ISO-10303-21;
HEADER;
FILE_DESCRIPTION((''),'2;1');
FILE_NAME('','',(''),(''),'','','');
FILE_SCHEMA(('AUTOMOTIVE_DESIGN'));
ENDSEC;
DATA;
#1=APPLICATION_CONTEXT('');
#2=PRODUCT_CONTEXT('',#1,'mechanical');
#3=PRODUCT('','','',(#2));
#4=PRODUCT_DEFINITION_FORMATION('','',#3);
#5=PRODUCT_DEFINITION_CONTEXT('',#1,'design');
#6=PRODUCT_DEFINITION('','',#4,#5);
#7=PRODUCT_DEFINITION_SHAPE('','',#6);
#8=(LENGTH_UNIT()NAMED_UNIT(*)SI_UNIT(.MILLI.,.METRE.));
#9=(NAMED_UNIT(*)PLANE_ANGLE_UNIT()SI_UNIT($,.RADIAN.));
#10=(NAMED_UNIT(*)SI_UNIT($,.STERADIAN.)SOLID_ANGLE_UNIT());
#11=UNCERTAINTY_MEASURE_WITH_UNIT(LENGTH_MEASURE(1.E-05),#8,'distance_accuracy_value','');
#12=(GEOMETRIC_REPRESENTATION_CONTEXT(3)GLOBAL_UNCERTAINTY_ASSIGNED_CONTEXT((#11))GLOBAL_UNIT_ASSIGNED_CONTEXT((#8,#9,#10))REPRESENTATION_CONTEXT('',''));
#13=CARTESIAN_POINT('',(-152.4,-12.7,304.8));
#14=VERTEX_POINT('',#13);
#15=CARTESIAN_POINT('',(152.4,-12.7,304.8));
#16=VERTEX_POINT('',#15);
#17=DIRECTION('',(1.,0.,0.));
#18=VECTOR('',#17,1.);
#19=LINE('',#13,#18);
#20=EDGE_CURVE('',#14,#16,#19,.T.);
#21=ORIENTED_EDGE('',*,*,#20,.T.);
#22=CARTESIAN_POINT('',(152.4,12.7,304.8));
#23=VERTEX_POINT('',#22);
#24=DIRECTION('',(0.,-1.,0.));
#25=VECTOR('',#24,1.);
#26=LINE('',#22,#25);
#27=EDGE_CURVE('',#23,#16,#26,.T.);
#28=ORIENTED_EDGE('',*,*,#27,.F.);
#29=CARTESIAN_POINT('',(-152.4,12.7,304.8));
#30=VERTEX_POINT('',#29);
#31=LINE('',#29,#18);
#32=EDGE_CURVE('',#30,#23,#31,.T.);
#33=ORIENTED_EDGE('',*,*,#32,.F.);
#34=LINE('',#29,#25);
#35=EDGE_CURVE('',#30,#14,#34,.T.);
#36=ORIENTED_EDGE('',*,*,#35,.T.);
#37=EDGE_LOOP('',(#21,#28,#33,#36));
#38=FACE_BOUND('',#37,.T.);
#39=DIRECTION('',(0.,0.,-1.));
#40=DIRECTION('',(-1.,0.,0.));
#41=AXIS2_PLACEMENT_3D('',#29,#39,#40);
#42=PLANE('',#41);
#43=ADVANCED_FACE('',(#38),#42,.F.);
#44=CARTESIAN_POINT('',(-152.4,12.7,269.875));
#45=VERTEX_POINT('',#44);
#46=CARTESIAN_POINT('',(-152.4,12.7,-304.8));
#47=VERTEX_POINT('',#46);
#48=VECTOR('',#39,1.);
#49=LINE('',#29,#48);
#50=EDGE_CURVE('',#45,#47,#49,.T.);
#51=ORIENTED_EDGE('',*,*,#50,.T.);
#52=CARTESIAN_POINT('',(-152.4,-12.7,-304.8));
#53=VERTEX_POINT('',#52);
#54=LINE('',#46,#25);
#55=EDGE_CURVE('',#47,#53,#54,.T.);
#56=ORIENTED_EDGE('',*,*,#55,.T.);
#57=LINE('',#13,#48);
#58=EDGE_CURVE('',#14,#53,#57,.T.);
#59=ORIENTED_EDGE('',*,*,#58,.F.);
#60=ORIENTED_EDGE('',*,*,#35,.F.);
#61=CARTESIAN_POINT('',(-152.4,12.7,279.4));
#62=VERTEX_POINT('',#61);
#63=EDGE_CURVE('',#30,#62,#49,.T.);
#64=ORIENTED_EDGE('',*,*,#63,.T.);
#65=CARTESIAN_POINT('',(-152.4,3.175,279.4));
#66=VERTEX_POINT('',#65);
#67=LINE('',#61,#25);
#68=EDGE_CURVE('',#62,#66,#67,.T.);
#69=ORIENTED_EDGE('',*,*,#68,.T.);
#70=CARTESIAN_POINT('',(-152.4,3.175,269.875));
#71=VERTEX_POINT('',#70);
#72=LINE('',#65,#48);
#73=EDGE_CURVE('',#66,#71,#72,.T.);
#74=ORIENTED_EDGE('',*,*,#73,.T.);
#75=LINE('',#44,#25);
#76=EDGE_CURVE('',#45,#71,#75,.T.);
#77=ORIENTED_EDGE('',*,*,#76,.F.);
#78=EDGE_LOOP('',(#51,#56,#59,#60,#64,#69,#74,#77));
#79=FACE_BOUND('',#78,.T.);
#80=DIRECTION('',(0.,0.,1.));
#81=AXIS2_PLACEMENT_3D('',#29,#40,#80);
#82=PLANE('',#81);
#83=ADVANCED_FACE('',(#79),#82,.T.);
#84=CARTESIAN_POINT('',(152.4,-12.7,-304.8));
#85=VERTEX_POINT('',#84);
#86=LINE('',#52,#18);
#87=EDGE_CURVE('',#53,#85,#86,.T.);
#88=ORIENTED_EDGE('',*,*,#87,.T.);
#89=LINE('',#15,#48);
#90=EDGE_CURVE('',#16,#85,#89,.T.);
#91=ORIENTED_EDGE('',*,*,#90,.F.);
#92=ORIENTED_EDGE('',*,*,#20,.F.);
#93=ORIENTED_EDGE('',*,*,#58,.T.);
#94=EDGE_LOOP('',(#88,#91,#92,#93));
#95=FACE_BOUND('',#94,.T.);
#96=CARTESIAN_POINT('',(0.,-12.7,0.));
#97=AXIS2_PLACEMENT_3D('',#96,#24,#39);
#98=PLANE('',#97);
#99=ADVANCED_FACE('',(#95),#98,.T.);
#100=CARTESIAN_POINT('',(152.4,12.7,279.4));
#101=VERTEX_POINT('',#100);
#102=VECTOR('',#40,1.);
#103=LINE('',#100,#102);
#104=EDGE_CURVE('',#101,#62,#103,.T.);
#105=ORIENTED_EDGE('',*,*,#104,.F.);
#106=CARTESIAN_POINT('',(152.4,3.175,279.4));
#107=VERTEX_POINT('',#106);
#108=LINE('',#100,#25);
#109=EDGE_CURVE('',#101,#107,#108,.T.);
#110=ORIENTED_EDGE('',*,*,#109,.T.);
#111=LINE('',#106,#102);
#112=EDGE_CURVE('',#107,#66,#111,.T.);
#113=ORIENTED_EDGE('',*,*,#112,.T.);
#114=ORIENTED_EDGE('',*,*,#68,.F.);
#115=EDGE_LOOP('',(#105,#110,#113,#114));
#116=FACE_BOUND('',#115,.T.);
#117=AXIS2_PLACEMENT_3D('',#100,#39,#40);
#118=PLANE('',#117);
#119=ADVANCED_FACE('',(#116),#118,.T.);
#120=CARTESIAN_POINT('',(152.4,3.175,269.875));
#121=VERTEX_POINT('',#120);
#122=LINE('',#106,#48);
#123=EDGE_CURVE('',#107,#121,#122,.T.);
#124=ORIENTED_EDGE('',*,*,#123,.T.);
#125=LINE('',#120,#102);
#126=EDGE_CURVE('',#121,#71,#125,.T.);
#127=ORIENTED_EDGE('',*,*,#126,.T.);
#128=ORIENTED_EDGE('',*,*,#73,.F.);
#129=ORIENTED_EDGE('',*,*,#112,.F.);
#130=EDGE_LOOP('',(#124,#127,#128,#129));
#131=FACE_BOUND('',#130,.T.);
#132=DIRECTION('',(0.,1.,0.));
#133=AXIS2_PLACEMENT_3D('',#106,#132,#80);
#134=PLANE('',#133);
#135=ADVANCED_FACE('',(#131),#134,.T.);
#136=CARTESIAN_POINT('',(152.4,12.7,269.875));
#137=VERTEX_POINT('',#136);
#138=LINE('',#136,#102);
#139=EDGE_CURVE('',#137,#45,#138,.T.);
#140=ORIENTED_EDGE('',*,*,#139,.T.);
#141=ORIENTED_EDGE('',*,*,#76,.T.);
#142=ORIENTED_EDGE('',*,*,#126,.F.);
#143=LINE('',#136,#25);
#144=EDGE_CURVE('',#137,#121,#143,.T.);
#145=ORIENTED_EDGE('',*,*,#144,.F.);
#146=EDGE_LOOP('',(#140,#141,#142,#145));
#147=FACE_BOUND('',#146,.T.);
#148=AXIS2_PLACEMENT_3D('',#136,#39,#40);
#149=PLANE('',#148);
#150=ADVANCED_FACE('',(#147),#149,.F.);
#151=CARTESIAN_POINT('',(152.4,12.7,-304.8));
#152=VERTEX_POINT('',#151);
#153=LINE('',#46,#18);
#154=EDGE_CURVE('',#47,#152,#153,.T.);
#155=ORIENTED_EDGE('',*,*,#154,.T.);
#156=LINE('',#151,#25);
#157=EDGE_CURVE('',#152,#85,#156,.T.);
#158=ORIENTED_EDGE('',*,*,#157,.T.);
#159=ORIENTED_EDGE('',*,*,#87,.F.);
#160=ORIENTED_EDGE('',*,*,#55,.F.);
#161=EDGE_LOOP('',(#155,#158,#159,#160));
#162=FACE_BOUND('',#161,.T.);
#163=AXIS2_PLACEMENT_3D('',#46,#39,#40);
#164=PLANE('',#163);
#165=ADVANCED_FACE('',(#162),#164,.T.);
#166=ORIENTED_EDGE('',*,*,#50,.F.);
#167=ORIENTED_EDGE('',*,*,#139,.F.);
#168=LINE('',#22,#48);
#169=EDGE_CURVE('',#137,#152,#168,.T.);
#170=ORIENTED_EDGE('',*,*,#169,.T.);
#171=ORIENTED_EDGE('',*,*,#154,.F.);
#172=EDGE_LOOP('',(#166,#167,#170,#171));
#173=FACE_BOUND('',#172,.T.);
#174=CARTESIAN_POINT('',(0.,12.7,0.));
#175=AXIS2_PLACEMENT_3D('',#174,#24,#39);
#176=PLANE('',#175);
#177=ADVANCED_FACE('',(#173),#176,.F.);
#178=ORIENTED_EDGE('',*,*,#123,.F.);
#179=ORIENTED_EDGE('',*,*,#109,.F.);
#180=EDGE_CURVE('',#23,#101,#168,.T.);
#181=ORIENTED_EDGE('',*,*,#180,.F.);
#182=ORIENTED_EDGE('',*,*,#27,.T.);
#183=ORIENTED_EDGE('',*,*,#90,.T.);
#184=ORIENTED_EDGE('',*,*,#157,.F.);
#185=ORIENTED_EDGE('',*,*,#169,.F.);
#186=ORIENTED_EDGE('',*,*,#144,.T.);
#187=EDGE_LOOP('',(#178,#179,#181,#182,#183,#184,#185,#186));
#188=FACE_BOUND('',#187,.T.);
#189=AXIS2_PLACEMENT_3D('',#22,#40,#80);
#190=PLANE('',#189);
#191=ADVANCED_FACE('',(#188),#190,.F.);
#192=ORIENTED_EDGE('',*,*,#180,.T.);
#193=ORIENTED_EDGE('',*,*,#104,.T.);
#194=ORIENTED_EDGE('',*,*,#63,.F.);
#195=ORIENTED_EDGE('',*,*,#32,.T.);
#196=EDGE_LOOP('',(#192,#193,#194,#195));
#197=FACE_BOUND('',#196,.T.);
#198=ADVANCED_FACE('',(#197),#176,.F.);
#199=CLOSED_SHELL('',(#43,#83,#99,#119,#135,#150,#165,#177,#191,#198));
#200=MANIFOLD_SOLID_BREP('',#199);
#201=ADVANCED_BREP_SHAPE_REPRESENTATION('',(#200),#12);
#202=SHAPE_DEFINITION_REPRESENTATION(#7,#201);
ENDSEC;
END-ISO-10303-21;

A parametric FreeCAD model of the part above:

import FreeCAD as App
import Part
import Sketcher
from FreeCAD import Vector
Q = App.Units.Quantity


def add_polygon(sketch, points):
    """Adds a closed chain of lines whose ends are joined by coincident constraints."""
    first, n = sketch.GeometryCount, len(points)
    for a, b in zip(points, points[1:] + points[:1]):
        sketch.addGeometry(Part.LineSegment(App.Vector(*a, 0), App.Vector(*b, 0)), False)
    for i in range(n):
        sketch.addConstraint(Sketcher.Constraint("Coincident", first + i, 2, first + (i + 1) % n, 1))

doc = App.newDocument("Part")
params = doc.addObject("Spreadsheet::Sheet", "Params")
for row, (alias, value) in enumerate([
    ("sketch1_width", "12 in"),
    ("sketch1_height", "24 in"),
    ("pad1_length", "1 in"),
    ("sketch2_width", "0.375 in"),
], start=1):
    params.set(f"A{row}", alias)
    params.set(f"B{row}", "=" + value)
    params.setAlias(f"B{row}", alias)

body = doc.addObject("PartDesign::Body", "Body")

# Sketch on XZ plane
sketch1 = doc.addObject("Sketcher::SketchObject", "Sketch")
body.addObject(sketch1)
sketch1.AttachmentSupport = (doc.XZ_Plane, [""])
sketch1.MapMode = "FlatFace"
add_polygon(sketch1, [(-152, -305), (-152, 305), (152, 305), (152, -305)])  # lines 0-3
sketch1.addConstraint(Sketcher.Constraint("Vertical", 0))
sketch1.addConstraint(Sketcher.Constraint("Horizontal", 1))
sketch1.addConstraint(Sketcher.Constraint("Vertical", 2))
sketch1.addConstraint(Sketcher.Constraint("Horizontal", 3))
sketch1.addConstraint(Sketcher.Constraint("Symmetric", 0, 2, 2, 2, -1, 1))
sketch1.addConstraint(Sketcher.Constraint("DistanceX", 1, 1, 1, 2, Q("12 in")))
sketch1.addConstraint(Sketcher.Constraint("DistanceY", 0, 1, 0, 2, Q("24 in")))
sketch1.setExpression("Constraints[9]", "Params.sketch1_width")
sketch1.setExpression("Constraints[10]", "Params.sketch1_height")
pad1 = doc.addObject("PartDesign::Pad", "Pad")
body.addObject(pad1)
pad1.Profile = sketch1
pad1.setExpression("Length", "Params.pad1_length")
pad1.Midplane = True

# Sketch on YZ plane
sketch2 = doc.addObject("Sketcher::SketchObject", "Sketch001")
body.addObject(sketch2)
sketch2.AttachmentSupport = (doc.YZ_Plane, [""])
sketch2.MapMode = "FlatFace"
sketch2.AttachmentOffset = App.Placement(Vector(0, 0, -6 * 25.4), App.Rotation())
add_polygon(sketch2, [(13, 270), (3, 270), (3, 279), (13, 279)])  # lines 0-3
sketch2.addConstraint(Sketcher.Constraint("Horizontal", 0))
sketch2.addConstraint(Sketcher.Constraint("Vertical", 1))
sketch2.addConstraint(Sketcher.Constraint("Horizontal", 2))
sketch2.addConstraint(Sketcher.Constraint("Vertical", 3))
sketch2.addConstraint(Sketcher.Constraint("Equal", 2, 1))
sketch2.addConstraint(Sketcher.Constraint("DistanceY", -1, 1, 1, 2, Q("11 in")))
sketch2.addConstraint(Sketcher.Constraint("DistanceX", -1, 1, 2, 2, Q("0.5 in")))
sketch2.addConstraint(Sketcher.Constraint("DistanceX", 0, 2, 0, 1, Q("0.375 in")))
sketch2.setExpression("Constraints[11]", "Params.sketch2_width")
pocket1 = doc.addObject("PartDesign::Pocket", "Pocket")
body.addObject(pocket1)
pocket1.Profile = sketch2
pocket1.Type = "ThroughAll"
pocket1.Reversed = True

doc.recompute()
